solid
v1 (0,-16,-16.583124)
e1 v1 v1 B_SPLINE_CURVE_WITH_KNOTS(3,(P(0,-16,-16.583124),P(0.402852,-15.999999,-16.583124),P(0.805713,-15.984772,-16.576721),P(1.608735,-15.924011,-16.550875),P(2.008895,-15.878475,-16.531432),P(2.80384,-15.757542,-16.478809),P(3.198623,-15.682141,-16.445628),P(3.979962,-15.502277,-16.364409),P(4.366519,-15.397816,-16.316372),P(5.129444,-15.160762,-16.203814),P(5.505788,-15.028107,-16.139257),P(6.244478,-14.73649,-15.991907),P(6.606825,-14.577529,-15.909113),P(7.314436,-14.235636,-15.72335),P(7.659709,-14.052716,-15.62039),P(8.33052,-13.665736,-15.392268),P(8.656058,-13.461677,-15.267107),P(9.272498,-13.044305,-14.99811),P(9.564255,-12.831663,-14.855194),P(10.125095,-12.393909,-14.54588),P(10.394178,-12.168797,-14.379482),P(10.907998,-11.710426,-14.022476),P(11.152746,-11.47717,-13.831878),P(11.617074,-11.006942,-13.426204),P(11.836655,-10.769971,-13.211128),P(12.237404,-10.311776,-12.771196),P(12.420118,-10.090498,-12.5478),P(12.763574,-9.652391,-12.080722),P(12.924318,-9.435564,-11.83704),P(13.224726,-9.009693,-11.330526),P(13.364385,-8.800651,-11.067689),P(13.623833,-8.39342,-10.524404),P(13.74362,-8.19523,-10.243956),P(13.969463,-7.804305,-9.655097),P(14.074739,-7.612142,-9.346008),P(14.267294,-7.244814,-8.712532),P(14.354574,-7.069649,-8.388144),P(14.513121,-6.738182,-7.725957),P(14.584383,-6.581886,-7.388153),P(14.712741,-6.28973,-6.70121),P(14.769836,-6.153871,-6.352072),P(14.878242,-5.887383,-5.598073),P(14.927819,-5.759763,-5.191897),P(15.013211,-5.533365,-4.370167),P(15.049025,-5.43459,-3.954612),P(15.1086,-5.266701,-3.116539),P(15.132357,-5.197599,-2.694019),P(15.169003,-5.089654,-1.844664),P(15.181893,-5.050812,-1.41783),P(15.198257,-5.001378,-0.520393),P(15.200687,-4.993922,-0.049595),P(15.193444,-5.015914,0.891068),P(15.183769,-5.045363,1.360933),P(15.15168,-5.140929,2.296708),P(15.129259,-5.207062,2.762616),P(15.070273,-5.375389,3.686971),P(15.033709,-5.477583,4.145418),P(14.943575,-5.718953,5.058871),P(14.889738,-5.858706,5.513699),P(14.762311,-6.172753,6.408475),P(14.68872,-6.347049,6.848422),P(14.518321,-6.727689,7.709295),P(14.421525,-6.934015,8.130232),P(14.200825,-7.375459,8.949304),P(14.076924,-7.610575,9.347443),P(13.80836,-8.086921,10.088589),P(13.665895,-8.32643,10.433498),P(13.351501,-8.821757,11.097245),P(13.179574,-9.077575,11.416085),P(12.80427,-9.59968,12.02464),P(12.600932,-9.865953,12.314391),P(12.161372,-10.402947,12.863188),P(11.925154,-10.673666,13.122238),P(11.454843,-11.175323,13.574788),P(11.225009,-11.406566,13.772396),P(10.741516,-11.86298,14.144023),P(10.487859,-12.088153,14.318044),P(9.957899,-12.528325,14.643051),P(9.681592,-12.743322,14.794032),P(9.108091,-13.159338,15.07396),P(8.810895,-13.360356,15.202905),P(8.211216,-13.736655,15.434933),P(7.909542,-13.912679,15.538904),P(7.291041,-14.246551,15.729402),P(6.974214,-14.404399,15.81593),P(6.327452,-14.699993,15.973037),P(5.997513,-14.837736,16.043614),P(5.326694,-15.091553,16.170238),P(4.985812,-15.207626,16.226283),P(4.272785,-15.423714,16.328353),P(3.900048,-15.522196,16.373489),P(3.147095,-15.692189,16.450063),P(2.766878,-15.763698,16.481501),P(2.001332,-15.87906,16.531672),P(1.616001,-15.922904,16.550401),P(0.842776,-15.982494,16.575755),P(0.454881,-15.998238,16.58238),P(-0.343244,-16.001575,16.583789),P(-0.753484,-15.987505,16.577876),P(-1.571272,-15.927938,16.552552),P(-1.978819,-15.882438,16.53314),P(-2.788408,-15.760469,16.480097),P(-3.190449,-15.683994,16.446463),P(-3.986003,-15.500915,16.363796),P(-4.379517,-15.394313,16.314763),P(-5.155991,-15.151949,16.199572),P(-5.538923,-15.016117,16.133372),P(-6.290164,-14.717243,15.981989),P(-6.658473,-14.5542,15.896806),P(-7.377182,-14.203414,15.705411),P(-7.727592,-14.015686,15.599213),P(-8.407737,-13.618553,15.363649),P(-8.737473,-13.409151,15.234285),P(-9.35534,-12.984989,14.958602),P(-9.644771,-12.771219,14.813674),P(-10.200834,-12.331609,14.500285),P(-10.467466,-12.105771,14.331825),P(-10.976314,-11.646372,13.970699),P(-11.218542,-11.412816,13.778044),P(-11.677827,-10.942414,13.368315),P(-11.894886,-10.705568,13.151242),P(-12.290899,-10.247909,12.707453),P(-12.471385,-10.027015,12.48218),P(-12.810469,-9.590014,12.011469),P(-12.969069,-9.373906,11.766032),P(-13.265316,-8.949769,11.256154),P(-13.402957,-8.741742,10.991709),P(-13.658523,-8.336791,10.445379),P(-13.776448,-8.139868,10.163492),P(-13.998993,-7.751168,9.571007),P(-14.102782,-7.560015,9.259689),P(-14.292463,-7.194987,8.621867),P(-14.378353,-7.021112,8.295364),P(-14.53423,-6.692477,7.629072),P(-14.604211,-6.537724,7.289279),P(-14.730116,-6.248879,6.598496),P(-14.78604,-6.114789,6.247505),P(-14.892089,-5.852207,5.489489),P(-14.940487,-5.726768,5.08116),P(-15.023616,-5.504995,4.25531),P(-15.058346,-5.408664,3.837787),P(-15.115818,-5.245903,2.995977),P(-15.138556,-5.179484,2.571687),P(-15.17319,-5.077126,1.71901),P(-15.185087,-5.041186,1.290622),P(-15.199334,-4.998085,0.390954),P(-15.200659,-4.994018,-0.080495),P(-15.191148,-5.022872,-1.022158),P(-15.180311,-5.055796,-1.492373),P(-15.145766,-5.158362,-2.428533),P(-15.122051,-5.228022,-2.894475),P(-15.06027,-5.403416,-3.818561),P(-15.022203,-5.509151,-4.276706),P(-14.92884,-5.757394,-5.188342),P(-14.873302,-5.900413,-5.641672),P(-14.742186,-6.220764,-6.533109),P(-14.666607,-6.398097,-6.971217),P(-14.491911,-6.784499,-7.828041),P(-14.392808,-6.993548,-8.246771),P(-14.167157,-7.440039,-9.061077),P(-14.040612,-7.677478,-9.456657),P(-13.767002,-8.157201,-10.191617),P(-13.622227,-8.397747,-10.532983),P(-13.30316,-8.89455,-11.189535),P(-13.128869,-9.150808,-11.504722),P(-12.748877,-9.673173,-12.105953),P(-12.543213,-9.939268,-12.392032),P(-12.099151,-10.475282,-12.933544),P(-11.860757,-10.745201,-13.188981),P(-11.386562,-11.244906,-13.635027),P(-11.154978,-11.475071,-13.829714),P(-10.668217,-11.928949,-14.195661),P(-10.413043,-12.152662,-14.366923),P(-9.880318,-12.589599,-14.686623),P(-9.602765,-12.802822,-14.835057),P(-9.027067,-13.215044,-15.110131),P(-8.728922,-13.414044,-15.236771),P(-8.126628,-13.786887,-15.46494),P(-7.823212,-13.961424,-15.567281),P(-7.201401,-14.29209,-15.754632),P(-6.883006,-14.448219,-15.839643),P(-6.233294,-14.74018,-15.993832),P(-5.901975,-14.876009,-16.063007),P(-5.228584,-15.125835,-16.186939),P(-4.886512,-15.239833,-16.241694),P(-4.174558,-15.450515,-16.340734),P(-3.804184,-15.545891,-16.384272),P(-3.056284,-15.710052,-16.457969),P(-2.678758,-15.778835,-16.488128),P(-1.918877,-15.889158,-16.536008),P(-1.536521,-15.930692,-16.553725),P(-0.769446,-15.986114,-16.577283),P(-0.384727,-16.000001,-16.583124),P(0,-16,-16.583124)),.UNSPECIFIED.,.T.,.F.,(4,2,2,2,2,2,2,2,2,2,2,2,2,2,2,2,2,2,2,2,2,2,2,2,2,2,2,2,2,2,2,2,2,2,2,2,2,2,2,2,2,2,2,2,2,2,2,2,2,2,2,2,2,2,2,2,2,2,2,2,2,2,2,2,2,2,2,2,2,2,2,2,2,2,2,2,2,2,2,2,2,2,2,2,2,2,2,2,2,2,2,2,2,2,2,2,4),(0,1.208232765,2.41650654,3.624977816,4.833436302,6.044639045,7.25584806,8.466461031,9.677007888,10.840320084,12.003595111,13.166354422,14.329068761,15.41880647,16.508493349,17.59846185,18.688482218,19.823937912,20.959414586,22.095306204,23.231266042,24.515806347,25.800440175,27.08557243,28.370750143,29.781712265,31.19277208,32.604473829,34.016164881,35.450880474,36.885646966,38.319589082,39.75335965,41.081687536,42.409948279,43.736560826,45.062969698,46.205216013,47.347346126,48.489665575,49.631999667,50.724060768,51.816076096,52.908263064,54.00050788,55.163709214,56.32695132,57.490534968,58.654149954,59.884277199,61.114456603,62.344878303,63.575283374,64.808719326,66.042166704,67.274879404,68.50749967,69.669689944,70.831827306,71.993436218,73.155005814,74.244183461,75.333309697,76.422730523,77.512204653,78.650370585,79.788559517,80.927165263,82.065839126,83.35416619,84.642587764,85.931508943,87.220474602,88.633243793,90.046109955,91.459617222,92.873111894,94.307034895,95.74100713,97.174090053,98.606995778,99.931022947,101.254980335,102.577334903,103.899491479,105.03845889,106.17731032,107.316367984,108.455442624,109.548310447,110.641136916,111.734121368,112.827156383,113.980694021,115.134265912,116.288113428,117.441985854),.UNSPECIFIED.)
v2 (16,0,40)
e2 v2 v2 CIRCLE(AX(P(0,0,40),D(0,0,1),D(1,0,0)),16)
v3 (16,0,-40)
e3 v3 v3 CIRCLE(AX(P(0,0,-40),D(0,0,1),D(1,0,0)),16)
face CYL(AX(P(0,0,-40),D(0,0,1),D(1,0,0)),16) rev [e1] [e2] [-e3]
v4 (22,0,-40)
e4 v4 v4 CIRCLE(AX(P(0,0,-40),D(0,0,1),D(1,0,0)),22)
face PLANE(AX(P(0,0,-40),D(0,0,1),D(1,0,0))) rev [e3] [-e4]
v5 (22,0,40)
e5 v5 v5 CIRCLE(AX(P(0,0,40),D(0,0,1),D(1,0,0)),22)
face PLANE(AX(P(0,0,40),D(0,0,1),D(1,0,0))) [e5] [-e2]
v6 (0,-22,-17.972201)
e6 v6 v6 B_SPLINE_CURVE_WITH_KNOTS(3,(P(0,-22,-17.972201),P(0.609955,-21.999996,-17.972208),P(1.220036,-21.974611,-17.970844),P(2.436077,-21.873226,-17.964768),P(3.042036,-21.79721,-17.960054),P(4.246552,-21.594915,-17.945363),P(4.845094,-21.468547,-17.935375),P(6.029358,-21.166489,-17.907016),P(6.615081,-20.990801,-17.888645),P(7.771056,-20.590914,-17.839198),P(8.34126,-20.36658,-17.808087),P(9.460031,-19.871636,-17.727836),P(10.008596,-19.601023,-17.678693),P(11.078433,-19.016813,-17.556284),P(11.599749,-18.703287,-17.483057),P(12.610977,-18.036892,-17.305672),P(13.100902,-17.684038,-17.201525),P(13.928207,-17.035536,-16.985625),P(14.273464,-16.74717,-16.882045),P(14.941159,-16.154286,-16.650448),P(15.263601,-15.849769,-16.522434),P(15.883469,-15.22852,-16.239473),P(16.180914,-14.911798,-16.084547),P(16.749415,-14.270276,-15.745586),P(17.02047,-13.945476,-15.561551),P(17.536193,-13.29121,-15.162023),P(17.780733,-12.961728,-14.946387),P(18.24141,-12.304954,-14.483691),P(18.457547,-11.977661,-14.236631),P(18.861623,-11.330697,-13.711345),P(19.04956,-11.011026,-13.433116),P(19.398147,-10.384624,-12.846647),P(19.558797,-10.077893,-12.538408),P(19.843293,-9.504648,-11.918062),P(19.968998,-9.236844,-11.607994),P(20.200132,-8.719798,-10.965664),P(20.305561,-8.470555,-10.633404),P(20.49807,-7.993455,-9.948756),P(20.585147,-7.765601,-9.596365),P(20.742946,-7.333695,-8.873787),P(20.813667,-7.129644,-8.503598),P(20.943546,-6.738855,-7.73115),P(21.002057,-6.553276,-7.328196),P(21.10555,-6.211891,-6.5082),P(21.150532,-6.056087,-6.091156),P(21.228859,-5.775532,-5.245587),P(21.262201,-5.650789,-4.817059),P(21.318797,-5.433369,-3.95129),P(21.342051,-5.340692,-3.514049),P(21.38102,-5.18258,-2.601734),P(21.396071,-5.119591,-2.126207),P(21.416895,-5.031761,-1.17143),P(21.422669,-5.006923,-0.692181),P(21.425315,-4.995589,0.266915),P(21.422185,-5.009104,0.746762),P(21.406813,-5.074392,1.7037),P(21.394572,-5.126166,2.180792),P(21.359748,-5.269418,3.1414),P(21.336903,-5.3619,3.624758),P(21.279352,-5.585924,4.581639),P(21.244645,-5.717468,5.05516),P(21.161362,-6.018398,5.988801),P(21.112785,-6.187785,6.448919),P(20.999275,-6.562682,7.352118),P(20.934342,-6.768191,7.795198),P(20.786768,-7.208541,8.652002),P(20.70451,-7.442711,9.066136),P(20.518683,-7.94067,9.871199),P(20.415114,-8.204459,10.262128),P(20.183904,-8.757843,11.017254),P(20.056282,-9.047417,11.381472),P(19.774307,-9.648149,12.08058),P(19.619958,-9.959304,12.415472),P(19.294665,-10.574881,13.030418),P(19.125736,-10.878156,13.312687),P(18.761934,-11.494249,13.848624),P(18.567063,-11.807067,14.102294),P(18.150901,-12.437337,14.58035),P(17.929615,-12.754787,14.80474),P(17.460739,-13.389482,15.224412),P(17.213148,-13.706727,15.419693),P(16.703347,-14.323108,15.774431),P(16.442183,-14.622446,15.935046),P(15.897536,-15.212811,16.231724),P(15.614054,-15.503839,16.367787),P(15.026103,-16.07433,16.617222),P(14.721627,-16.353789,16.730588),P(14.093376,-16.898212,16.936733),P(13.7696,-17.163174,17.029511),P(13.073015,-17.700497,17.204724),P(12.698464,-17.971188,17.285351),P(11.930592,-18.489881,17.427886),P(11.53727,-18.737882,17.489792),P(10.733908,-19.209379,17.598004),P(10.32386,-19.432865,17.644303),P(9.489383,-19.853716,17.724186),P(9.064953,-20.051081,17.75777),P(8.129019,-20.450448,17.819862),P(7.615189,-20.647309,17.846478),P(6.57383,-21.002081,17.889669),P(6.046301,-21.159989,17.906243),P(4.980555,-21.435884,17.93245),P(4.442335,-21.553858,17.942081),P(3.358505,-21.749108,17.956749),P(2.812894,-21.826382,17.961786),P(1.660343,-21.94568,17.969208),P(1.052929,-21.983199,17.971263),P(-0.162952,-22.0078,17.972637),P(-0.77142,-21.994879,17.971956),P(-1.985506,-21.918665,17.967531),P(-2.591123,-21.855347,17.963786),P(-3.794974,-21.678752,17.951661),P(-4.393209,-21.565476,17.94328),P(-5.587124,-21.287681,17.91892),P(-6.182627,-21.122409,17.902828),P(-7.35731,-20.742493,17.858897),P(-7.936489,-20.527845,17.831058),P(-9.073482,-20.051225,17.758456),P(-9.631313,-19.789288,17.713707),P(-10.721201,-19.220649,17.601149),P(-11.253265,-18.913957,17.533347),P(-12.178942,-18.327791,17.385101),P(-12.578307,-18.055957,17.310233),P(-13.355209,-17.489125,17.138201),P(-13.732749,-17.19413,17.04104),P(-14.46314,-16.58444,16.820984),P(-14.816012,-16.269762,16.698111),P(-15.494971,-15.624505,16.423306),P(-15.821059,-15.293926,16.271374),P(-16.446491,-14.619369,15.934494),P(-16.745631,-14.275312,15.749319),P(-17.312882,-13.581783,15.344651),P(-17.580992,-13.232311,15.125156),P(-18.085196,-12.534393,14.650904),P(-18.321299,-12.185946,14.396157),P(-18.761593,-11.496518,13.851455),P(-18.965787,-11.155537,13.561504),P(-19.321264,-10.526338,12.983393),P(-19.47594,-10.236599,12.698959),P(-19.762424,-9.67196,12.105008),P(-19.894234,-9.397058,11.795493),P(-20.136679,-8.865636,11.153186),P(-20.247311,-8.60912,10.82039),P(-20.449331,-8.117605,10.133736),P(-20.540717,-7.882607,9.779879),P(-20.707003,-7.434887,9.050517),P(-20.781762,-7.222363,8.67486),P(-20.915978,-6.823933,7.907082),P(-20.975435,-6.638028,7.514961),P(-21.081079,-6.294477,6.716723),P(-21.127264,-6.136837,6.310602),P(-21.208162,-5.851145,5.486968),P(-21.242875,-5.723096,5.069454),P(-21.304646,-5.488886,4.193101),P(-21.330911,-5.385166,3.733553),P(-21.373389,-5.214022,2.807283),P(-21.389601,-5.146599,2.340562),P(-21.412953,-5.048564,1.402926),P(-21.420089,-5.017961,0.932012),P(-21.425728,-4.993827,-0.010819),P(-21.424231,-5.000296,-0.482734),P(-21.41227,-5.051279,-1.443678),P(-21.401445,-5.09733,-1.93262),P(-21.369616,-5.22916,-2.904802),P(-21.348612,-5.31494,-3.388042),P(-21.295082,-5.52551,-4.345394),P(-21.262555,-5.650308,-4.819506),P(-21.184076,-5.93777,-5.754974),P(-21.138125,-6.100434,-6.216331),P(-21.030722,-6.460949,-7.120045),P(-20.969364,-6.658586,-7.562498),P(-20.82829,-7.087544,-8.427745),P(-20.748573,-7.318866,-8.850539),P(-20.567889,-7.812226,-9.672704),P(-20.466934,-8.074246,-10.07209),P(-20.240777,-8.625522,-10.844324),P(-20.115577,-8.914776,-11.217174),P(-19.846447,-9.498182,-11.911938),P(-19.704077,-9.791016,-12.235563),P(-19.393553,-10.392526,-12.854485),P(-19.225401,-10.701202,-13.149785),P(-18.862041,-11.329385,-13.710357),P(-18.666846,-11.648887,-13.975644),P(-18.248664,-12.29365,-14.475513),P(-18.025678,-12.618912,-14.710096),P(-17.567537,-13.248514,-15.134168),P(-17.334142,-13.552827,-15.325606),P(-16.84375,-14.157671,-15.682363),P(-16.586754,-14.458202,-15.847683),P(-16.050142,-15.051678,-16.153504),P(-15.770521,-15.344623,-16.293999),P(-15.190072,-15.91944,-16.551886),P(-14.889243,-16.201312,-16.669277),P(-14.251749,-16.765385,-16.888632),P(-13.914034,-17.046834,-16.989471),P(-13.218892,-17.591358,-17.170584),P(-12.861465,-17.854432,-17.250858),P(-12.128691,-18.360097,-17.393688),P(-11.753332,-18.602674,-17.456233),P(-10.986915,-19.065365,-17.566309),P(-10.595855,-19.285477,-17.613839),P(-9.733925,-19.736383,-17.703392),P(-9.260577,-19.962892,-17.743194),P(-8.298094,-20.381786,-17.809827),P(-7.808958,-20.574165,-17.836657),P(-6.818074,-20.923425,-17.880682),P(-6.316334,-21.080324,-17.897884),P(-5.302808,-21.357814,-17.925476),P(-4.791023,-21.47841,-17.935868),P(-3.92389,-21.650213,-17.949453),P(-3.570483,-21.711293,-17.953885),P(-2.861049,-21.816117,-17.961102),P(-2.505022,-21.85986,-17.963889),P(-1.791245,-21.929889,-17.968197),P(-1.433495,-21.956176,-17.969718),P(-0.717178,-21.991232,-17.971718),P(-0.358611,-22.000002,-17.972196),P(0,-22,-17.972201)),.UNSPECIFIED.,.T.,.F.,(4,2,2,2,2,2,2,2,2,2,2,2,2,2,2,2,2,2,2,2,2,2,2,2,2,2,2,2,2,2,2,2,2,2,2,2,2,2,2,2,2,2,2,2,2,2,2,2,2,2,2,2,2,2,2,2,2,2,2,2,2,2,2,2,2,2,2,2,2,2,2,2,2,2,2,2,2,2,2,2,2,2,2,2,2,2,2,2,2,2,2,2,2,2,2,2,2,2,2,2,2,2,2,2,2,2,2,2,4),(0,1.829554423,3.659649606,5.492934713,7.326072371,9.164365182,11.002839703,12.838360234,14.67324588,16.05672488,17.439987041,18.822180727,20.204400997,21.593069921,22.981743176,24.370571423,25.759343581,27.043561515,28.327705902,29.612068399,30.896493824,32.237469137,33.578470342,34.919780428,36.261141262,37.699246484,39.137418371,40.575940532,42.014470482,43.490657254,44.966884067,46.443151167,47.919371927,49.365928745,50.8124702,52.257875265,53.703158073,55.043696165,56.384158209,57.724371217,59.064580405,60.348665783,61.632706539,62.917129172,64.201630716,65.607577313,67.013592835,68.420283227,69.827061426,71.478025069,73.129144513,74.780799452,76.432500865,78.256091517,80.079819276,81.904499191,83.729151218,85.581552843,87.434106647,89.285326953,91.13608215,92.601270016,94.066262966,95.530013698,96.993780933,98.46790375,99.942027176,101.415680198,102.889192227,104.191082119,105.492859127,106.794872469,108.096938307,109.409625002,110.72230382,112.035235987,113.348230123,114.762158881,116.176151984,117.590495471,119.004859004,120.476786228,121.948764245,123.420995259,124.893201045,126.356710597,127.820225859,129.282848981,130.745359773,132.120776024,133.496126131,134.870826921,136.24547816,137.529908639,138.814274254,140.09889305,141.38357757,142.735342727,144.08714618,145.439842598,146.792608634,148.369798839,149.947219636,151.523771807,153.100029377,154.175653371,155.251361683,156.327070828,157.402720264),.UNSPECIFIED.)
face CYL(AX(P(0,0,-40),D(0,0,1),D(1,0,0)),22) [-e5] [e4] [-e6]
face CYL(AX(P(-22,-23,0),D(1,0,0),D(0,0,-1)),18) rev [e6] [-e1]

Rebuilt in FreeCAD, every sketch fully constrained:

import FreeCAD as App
import Part
import Sketcher

doc = App.newDocument("Part")
params = doc.addObject("Spreadsheet::Sheet", "Params")
for row, (alias, value) in enumerate([
    ("sketch1_diameter", "44 mm"),
    ("sketch1_diameter2", "32 mm"),
    ("pad1_length", "40 mm"),
    ("pad1_length2", "40 mm"),
    ("sketch2_diameter", "36 mm"),
], start=1):
    params.set(f"A{row}", alias)
    params.set(f"B{row}", "=" + value)
    params.setAlias(f"B{row}", alias)

body = doc.addObject("PartDesign::Body", "Body")

# Sketch on XY plane
sketch1 = body.newObject("Sketcher::SketchObject", "Sketch")
sketch1.AttachmentSupport = (doc.getObject("XY_Plane"), [""])
sketch1.MapMode = "FlatFace"
sketch1.addGeometry([
    Part.Circle(App.Vector(0, 0, 0), App.Vector(0, 0, 1), 22),
    Part.Circle(App.Vector(0, 0, 0), App.Vector(0, 0, 1), 16),
], False)
sketch1.addConstraint([
    Sketcher.Constraint("Coincident", 0, 3, -1, 1),
    Sketcher.Constraint("Coincident", 1, 3, -1, 1),
    Sketcher.Constraint("Diameter", 0, 44.0),
    Sketcher.Constraint("Diameter", 1, 32.0),
])
sketch1.setExpression("Constraints[2]", "Params.sketch1_diameter")
sketch1.setExpression("Constraints[3]", "Params.sketch1_diameter2")
pad1 = body.newObject("PartDesign::Pad", "Pad")
pad1.Profile = sketch1
pad1.Type = "TwoLengths"
pad1.setExpression("Length", "Params.pad1_length")
pad1.setExpression("Length2", "Params.pad1_length2")

# Sketch on YZ plane
sketch2 = body.newObject("Sketcher::SketchObject", "Sketch001")
sketch2.AttachmentSupport = (doc.getObject("YZ_Plane"), [""])
sketch2.MapMode = "FlatFace"
sketch2.addGeometry(Part.Circle(App.Vector(-23, 0, 0), App.Vector(0, 0, 1), 18), False)
sketch2.addConstraint([
    Sketcher.Constraint("PointOnObject", 0, 3, -1),
    Sketcher.Constraint("Diameter", 0, 36.0),
    Sketcher.Constraint("DistanceX", 0, 3, -1, 1, 23.0),
])
sketch2.setExpression("Constraints[1]", "Params.sketch2_diameter")
pocket1 = body.newObject("PartDesign::Pocket", "Pocket")
pocket1.Profile = sketch2
pocket1.Type = "ThroughAll"
pocket1.Midplane = True

doc.recompute()
